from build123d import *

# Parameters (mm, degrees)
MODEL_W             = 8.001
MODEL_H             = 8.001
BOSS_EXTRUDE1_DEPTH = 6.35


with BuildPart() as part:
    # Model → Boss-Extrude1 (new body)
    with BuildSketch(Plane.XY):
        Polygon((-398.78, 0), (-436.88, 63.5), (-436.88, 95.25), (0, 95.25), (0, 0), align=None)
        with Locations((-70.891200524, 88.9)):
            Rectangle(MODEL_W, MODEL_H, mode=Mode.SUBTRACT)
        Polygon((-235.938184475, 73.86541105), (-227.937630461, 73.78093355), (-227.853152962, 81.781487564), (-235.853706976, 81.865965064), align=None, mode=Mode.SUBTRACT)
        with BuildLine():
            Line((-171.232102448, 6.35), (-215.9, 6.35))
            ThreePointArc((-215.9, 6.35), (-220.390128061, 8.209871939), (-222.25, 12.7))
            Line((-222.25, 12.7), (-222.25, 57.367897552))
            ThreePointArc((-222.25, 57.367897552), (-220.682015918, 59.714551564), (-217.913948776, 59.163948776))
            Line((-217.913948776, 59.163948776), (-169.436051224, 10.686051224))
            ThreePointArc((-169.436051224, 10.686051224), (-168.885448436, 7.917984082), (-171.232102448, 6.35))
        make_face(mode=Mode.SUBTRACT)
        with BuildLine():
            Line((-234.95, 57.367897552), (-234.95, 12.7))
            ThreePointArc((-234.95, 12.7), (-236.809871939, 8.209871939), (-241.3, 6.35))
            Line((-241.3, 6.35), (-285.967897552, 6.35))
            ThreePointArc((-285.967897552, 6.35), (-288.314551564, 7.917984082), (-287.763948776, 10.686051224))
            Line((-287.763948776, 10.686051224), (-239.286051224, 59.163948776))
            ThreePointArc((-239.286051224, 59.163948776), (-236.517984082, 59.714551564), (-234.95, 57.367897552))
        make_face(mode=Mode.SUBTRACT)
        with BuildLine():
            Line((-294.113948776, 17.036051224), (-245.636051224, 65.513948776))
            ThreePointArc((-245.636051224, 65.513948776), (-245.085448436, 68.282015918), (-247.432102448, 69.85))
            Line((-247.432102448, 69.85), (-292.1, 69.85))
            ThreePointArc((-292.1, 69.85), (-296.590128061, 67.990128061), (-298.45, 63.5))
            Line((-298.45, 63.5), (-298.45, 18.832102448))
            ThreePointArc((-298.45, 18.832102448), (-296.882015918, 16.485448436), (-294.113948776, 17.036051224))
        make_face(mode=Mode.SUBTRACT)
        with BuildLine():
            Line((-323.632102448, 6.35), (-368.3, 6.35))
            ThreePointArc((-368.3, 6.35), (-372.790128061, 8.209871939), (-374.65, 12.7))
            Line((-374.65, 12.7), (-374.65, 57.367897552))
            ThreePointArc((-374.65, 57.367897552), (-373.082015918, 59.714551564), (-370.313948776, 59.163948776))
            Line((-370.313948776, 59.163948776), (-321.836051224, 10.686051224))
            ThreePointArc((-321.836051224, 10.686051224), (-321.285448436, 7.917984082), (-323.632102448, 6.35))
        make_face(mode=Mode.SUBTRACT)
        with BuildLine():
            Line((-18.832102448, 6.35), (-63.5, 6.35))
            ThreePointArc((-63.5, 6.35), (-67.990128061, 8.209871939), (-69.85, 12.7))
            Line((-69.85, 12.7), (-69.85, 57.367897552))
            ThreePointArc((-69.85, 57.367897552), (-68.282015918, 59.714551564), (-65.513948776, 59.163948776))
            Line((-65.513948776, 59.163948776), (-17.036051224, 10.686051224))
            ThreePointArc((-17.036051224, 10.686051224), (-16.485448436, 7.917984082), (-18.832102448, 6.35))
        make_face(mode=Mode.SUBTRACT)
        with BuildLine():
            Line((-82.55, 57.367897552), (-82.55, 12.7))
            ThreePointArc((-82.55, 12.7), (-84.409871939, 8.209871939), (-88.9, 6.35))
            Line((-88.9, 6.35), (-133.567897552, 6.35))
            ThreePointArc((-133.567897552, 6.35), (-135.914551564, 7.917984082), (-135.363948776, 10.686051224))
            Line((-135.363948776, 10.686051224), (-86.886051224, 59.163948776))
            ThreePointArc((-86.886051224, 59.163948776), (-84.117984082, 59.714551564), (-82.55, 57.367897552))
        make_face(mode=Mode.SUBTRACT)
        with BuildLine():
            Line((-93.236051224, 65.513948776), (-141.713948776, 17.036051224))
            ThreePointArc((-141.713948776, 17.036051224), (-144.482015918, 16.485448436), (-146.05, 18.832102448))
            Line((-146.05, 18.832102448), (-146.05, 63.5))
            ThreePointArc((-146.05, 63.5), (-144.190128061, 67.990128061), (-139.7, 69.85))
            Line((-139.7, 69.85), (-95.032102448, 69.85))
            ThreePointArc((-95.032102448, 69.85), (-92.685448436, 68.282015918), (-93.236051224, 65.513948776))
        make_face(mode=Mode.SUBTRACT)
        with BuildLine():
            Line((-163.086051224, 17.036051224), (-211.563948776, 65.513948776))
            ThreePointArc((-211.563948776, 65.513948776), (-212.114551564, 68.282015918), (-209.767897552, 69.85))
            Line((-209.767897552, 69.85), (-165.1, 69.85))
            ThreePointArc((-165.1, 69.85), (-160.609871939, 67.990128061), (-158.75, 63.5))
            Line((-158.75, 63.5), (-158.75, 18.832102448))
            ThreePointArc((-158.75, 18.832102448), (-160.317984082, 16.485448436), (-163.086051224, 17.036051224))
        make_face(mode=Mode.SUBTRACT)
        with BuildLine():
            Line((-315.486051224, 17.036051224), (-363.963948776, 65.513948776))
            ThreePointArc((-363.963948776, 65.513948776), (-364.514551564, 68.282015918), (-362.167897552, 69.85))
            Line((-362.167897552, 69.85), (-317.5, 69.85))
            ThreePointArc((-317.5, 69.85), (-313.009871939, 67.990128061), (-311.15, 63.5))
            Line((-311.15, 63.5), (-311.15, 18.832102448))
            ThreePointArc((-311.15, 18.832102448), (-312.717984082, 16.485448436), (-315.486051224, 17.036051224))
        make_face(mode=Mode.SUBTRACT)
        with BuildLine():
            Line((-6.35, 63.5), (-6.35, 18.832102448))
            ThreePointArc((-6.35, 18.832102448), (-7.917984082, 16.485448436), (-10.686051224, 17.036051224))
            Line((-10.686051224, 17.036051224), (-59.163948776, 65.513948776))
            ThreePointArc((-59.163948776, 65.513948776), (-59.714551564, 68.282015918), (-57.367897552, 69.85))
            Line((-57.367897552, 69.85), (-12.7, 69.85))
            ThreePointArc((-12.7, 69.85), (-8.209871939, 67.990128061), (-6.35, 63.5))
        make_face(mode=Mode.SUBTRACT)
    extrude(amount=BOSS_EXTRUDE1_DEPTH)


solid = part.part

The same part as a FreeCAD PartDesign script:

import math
import FreeCAD as App
import Part
import Sketcher

V = App.Vector
Q = App.Units.Quantity


def add_polygon(sketch, points):
    """Adds a closed chain of lines whose ends are joined by coincident constraints."""
    first, n = sketch.GeometryCount, len(points)
    for a, b in zip(points, points[1:] + points[:1]):
        sketch.addGeometry(Part.LineSegment(App.Vector(*a, 0), App.Vector(*b, 0)), False)
    for i in range(n):
        sketch.addConstraint(Sketcher.Constraint("Coincident", first + i, 2, first + (i + 1) % n, 1))

doc = App.newDocument("Part")
body = doc.addObject("PartDesign::Body", "Body")

# Sketch on XY plane
sketch1 = body.newObject("Sketcher::SketchObject", "Sketch")
sketch1.AttachmentSupport = (doc.getObject("XY_Plane"), [""])
sketch1.MapMode = "FlatFace"
add_polygon(sketch1, [(-436.9, 63.5), (-398.8, 0), (0, 0), (0, 95.2), (-436.9, 95.2)])  # lines 0-4
sketch1.addGeometry(Part.LineSegment(V(-18.8, 6.3, 0), V(-63.5, 6.3, 0)), False)  # 5
sketch1.addGeometry(Part.ArcOfCircle(Part.Circle(V(-63.5, 12.7, 0), V(0, 0, 1), 6.3), math.radians(180), math.radians(270)), False)  # 6
sketch1.addGeometry(Part.LineSegment(V(-69.8, 12.7, 0), V(-69.8, 57.4, 0)), False)  # 7
sketch1.addGeometry(Part.ArcOfCircle(Part.Circle(V(-67.3, 57.4, 0), V(0, 0, 1), 2.5), math.radians(45), math.radians(180)), False)  # 8
sketch1.addGeometry(Part.LineSegment(V(-65.5, 59.2, 0), V(-17, 10.7, 0)), False)  # 9
sketch1.addGeometry(Part.ArcOfCircle(Part.Circle(V(-18.8, 8.9, 0), V(0, 0, 1), 2.5), math.radians(-90), math.radians(45)), False)  # 10
sketch1.addGeometry(Part.LineSegment(V(-6.3, 63.5, 0), V(-6.3, 18.8, 0)), False)  # 11
sketch1.addGeometry(Part.ArcOfCircle(Part.Circle(V(-8.9, 18.8, 0), V(0, 0, 1), 2.5), math.radians(-135), math.radians(0)), False)  # 12
sketch1.addGeometry(Part.LineSegment(V(-10.7, 17, 0), V(-59.2, 65.5, 0)), False)  # 13
sketch1.addGeometry(Part.ArcOfCircle(Part.Circle(V(-57.4, 67.3, 0), V(0, 0, 1), 2.5), math.radians(90), math.radians(225)), False)  # 14
sketch1.addGeometry(Part.LineSegment(V(-57.4, 69.8, 0), V(-12.7, 69.8, 0)), False)  # 15
sketch1.addGeometry(Part.ArcOfCircle(Part.Circle(V(-12.7, 63.5, 0), V(0, 0, 1), 6.3), math.radians(0), math.radians(90)), False)  # 16
sketch1.addGeometry(Part.LineSegment(V(-82.5, 57.4, 0), V(-82.5, 12.7, 0)), False)  # 17
sketch1.addGeometry(Part.ArcOfCircle(Part.Circle(V(-88.9, 12.7, 0), V(0, 0, 1), 6.3), math.radians(-90), math.radians(0)), False)  # 18
sketch1.addGeometry(Part.LineSegment(V(-88.9, 6.3, 0), V(-133.6, 6.3, 0)), False)  # 19
sketch1.addGeometry(Part.ArcOfCircle(Part.Circle(V(-133.6, 8.9, 0), V(0, 0, 1), 2.5), math.radians(135), math.radians(270)), False)  # 20
sketch1.addGeometry(Part.LineSegment(V(-135.4, 10.7, 0), V(-86.9, 59.2, 0)), False)  # 21
sketch1.addGeometry(Part.ArcOfCircle(Part.Circle(V(-85.1, 57.4, 0), V(0, 0, 1), 2.5), math.radians(0), math.radians(135)), False)  # 22
sketch1.addGeometry(Part.LineSegment(V(-93.2, 65.5, 0), V(-141.7, 17, 0)), False)  # 23
sketch1.addGeometry(Part.ArcOfCircle(Part.Circle(V(-143.5, 18.8, 0), V(0, 0, 1), 2.5), math.radians(-180), math.radians(-45)), False)  # 24
sketch1.addGeometry(Part.LineSegment(V(-146.1, 18.8, 0), V(-146.1, 63.5, 0)), False)  # 25
sketch1.addGeometry(Part.ArcOfCircle(Part.Circle(V(-139.7, 63.5, 0), V(0, 0, 1), 6.3), math.radians(90), math.radians(180)), False)  # 26
sketch1.addGeometry(Part.LineSegment(V(-139.7, 69.8, 0), V(-95, 69.8, 0)), False)  # 27
sketch1.addGeometry(Part.ArcOfCircle(Part.Circle(V(-95, 67.3, 0), V(0, 0, 1), 2.5), math.radians(-45), math.radians(90)), False)  # 28
sketch1.addGeometry(Part.LineSegment(V(-163.1, 17, 0), V(-211.6, 65.5, 0)), False)  # 29
sketch1.addGeometry(Part.ArcOfCircle(Part.Circle(V(-209.8, 67.3, 0), V(0, 0, 1), 2.5), math.radians(90), math.radians(225)), False)  # 30
sketch1.addGeometry(Part.LineSegment(V(-209.8, 69.8, 0), V(-165.1, 69.8, 0)), False)  # 31
sketch1.addGeometry(Part.ArcOfCircle(Part.Circle(V(-165.1, 63.5, 0), V(0, 0, 1), 6.3), math.radians(0), math.radians(90)), False)  # 32
sketch1.addGeometry(Part.LineSegment(V(-158.8, 63.5, 0), V(-158.8, 18.8, 0)), False)  # 33
sketch1.addGeometry(Part.ArcOfCircle(Part.Circle(V(-161.3, 18.8, 0), V(0, 0, 1), 2.5), math.radians(-135), math.radians(0)), False)  # 34
sketch1.addGeometry(Part.LineSegment(V(-171.2, 6.3, 0), V(-215.9, 6.3, 0)), False)  # 35
sketch1.addGeometry(Part.ArcOfCircle(Part.Circle(V(-215.9, 12.7, 0), V(0, 0, 1), 6.3), math.radians(180), math.radians(270)), False)  # 36
sketch1.addGeometry(Part.LineSegment(V(-222.2, 12.7, 0), V(-222.2, 57.4, 0)), False)  # 37
sketch1.addGeometry(Part.ArcOfCircle(Part.Circle(V(-219.7, 57.4, 0), V(0, 0, 1), 2.5), math.radians(45), math.radians(180)), False)  # 38
sketch1.addGeometry(Part.LineSegment(V(-217.9, 59.2, 0), V(-169.4, 10.7, 0)), False)  # 39
sketch1.addGeometry(Part.ArcOfCircle(Part.Circle(V(-171.2, 8.9, 0), V(0, 0, 1), 2.5), math.radians(-90), math.radians(45)), False)  # 40
sketch1.addGeometry(Part.LineSegment(V(-234.9, 57.4, 0), V(-234.9, 12.7, 0)), False)  # 41
sketch1.addGeometry(Part.ArcOfCircle(Part.Circle(V(-241.3, 12.7, 0), V(0, 0, 1), 6.3), math.radians(-90), math.radians(0)), False)  # 42
sketch1.addGeometry(Part.LineSegment(V(-241.3, 6.3, 0), V(-286, 6.3, 0)), False)  # 43
sketch1.addGeometry(Part.ArcOfCircle(Part.Circle(V(-286, 8.9, 0), V(0, 0, 1), 2.5), math.radians(135), math.radians(270)), False)  # 44
sketch1.addGeometry(Part.LineSegment(V(-287.8, 10.7, 0), V(-239.3, 59.2, 0)), False)  # 45
sketch1.addGeometry(Part.ArcOfCircle(Part.Circle(V(-237.5, 57.4, 0), V(0, 0, 1), 2.5), math.radians(0), math.radians(135)), False)  # 46
sketch1.addGeometry(Part.ArcOfCircle(Part.Circle(V(-295.9, 18.8, 0), V(0, 0, 1), 2.5), math.radians(-180), math.radians(-45)), False)  # 47
sketch1.addGeometry(Part.LineSegment(V(-298.4, 18.8, 0), V(-298.4, 63.5, 0)), False)  # 48
sketch1.addGeometry(Part.ArcOfCircle(Part.Circle(V(-292.1, 63.5, 0), V(0, 0, 1), 6.3), math.radians(90), math.radians(180)), False)  # 49
sketch1.addGeometry(Part.LineSegment(V(-292.1, 69.8, 0), V(-247.4, 69.8, 0)), False)  # 50
sketch1.addGeometry(Part.ArcOfCircle(Part.Circle(V(-247.4, 67.3, 0), V(0, 0, 1), 2.5), math.radians(-45), math.radians(90)), False)  # 51
sketch1.addGeometry(Part.LineSegment(V(-245.6, 65.5, 0), V(-294.1, 17, 0)), False)  # 52
sketch1.addGeometry(Part.LineSegment(V(-323.6, 6.3, 0), V(-368.3, 6.3, 0)), False)  # 53
sketch1.addGeometry(Part.ArcOfCircle(Part.Circle(V(-368.3, 12.7, 0), V(0, 0, 1), 6.3), math.radians(180), math.radians(270)), False)  # 54
sketch1.addGeometry(Part.LineSegment(V(-374.6, 12.7, 0), V(-374.6, 57.4, 0)), False)  # 55
sketch1.addGeometry(Part.ArcOfCircle(Part.Circle(V(-372.1, 57.4, 0), V(0, 0, 1), 2.5), math.radians(45), math.radians(180)), False)  # 56
sketch1.addGeometry(Part.LineSegment(V(-370.3, 59.2, 0), V(-321.8, 10.7, 0)), False)  # 57
sketch1.addGeometry(Part.ArcOfCircle(Part.Circle(V(-323.6, 8.9, 0), V(0, 0, 1), 2.5), math.radians(-90), math.radians(45)), False)  # 58
sketch1.addGeometry(Part.LineSegment(V(-315.5, 17, 0), V(-364, 65.5, 0)), False)  # 59
sketch1.addGeometry(Part.ArcOfCircle(Part.Circle(V(-362.2, 67.3, 0), V(0, 0, 1), 2.5), math.radians(90), math.radians(225)), False)  # 60
sketch1.addGeometry(Part.LineSegment(V(-362.2, 69.8, 0), V(-317.5, 69.8, 0)), False)  # 61
sketch1.addGeometry(Part.ArcOfCircle(Part.Circle(V(-317.5, 63.5, 0), V(0, 0, 1), 6.3), math.radians(0), math.radians(90)), False)  # 62
sketch1.addGeometry(Part.LineSegment(V(-311.1, 63.5, 0), V(-311.1, 18.8, 0)), False)  # 63
sketch1.addGeometry(Part.ArcOfCircle(Part.Circle(V(-313.7, 18.8, 0), V(0, 0, 1), 2.5), math.radians(-135), math.radians(0)), False)  # 64
add_polygon(sketch1, [(-74.9, 84.9), (-74.9, 92.9), (-66.9, 92.9), (-66.9, 84.9)])  # lines 65-68
add_polygon(sketch1, [(-235.9, 73.9), (-235.9, 81.9), (-227.9, 81.8), (-227.9, 73.8)])  # lines 69-72
sketch1.addConstraint(Sketcher.Constraint("Tangent", 5, 2, 6, 2))
sketch1.addConstraint(Sketcher.Constraint("Tangent", 6, 1, 7, 1))
sketch1.addConstraint(Sketcher.Constraint("Tangent", 7, 2, 8, 2))
sketch1.addConstraint(Sketcher.Constraint("Tangent", 8, 1, 9, 1))
sketch1.addConstraint(Sketcher.Constraint("Tangent", 9, 2, 10, 2))
sketch1.addConstraint(Sketcher.Constraint("Tangent", 10, 1, 5, 1))
sketch1.addConstraint(Sketcher.Constraint("Tangent", 11, 2, 12, 2))
sketch1.addConstraint(Sketcher.Constraint("Tangent", 12, 1, 13, 1))
sketch1.addConstraint(Sketcher.Constraint("Tangent", 13, 2, 14, 2))
sketch1.addConstraint(Sketcher.Constraint("Tangent", 14, 1, 15, 1))
sketch1.addConstraint(Sketcher.Constraint("Tangent", 15, 2, 16, 2))
sketch1.addConstraint(Sketcher.Constraint("Tangent", 16, 1, 11, 1))
sketch1.addConstraint(Sketcher.Constraint("Tangent", 17, 2, 18, 2))
sketch1.addConstraint(Sketcher.Constraint("Tangent", 18, 1, 19, 1))
sketch1.addConstraint(Sketcher.Constraint("Tangent", 19, 2, 20, 2))
sketch1.addConstraint(Sketcher.Constraint("Tangent", 20, 1, 21, 1))
sketch1.addConstraint(Sketcher.Constraint("Tangent", 21, 2, 22, 2))
sketch1.addConstraint(Sketcher.Constraint("Tangent", 22, 1, 17, 1))
sketch1.addConstraint(Sketcher.Constraint("Tangent", 23, 2, 24, 2))
sketch1.addConstraint(Sketcher.Constraint("Tangent", 24, 1, 25, 1))
sketch1.addConstraint(Sketcher.Constraint("Tangent", 25, 2, 26, 2))
sketch1.addConstraint(Sketcher.Constraint("Tangent", 26, 1, 27, 1))
sketch1.addConstraint(Sketcher.Constraint("Tangent", 27, 2, 28, 2))
sketch1.addConstraint(Sketcher.Constraint("Tangent", 28, 1, 23, 1))
sketch1.addConstraint(Sketcher.Constraint("Tangent", 29, 2, 30, 2))
sketch1.addConstraint(Sketcher.Constraint("Tangent", 30, 1, 31, 1))
sketch1.addConstraint(Sketcher.Constraint("Tangent", 31, 2, 32, 2))
sketch1.addConstraint(Sketcher.Constraint("Tangent", 32, 1, 33, 1))
sketch1.addConstraint(Sketcher.Constraint("Tangent", 33, 2, 34, 2))
sketch1.addConstraint(Sketcher.Constraint("Tangent", 34, 1, 29, 1))
sketch1.addConstraint(Sketcher.Constraint("Tangent", 35, 2, 36, 2))
sketch1.addConstraint(Sketcher.Constraint("Tangent", 36, 1, 37, 1))
sketch1.addConstraint(Sketcher.Constraint("Tangent", 37, 2, 38, 2))
sketch1.addConstraint(Sketcher.Constraint("Tangent", 38, 1, 39, 1))
sketch1.addConstraint(Sketcher.Constraint("Tangent", 39, 2, 40, 2))
sketch1.addConstraint(Sketcher.Constraint("Tangent", 40, 1, 35, 1))
sketch1.addConstraint(Sketcher.Constraint("Tangent", 41, 2, 42, 2))
sketch1.addConstraint(Sketcher.Constraint("Tangent", 42, 1, 43, 1))
sketch1.addConstraint(Sketcher.Constraint("Tangent", 43, 2, 44, 2))
sketch1.addConstraint(Sketcher.Constraint("Tangent", 44, 1, 45, 1))
sketch1.addConstraint(Sketcher.Constraint("Tangent", 45, 2, 46, 2))
sketch1.addConstraint(Sketcher.Constraint("Tangent", 46, 1, 41, 1))
sketch1.addConstraint(Sketcher.Constraint("Tangent", 47, 1, 48, 1))
sketch1.addConstraint(Sketcher.Constraint("Tangent", 48, 2, 49, 2))
sketch1.addConstraint(Sketcher.Constraint("Tangent", 49, 1, 50, 1))
sketch1.addConstraint(Sketcher.Constraint("Tangent", 50, 2, 51, 2))
sketch1.addConstraint(Sketcher.Constraint("Tangent", 51, 1, 52, 1))
sketch1.addConstraint(Sketcher.Constraint("Tangent", 52, 2, 47, 2))
sketch1.addConstraint(Sketcher.Constraint("Tangent", 53, 2, 54, 2))
sketch1.addConstraint(Sketcher.Constraint("Tangent", 54, 1, 55, 1))
sketch1.addConstraint(Sketcher.Constraint("Tangent", 55, 2, 56, 2))
sketch1.addConstraint(Sketcher.Constraint("Tangent", 56, 1, 57, 1))
sketch1.addConstraint(Sketcher.Constraint("Tangent", 57, 2, 58, 2))
sketch1.addConstraint(Sketcher.Constraint("Tangent", 58, 1, 53, 1))
sketch1.addConstraint(Sketcher.Constraint("Tangent", 59, 2, 60, 2))
sketch1.addConstraint(Sketcher.Constraint("Tangent", 60, 1, 61, 1))
sketch1.addConstraint(Sketcher.Constraint("Tangent", 61, 2, 62, 2))
sketch1.addConstraint(Sketcher.Constraint("Tangent", 62, 1, 63, 1))
sketch1.addConstraint(Sketcher.Constraint("Tangent", 63, 2, 64, 2))
sketch1.addConstraint(Sketcher.Constraint("Tangent", 64, 1, 59, 1))
sketch1.addConstraint(Sketcher.Constraint("Horizontal", 1))
sketch1.addConstraint(Sketcher.Constraint("Vertical", 2))
sketch1.addConstraint(Sketcher.Constraint("Horizontal", 3))
sketch1.addConstraint(Sketcher.Constraint("Vertical", 4))
sketch1.addConstraint(Sketcher.Constraint("Horizontal", 5))
sketch1.addConstraint(Sketcher.Constraint("Vertical", 7))
sketch1.addConstraint(Sketcher.Constraint("Vertical", 11))
sketch1.addConstraint(Sketcher.Constraint("Horizontal", 15))
sketch1.addConstraint(Sketcher.Constraint("Vertical", 17))
sketch1.addConstraint(Sketcher.Constraint("Horizontal", 19))
sketch1.addConstraint(Sketcher.Constraint("Vertical", 25))
sketch1.addConstraint(Sketcher.Constraint("Horizontal", 27))
sketch1.addConstraint(Sketcher.Constraint("Horizontal", 31))
sketch1.addConstraint(Sketcher.Constraint("Vertical", 33))
sketch1.addConstraint(Sketcher.Constraint("Horizontal", 35))
sketch1.addConstraint(Sketcher.Constraint("Vertical", 37))
sketch1.addConstraint(Sketcher.Constraint("Vertical", 41))
sketch1.addConstraint(Sketcher.Constraint("Horizontal", 43))
sketch1.addConstraint(Sketcher.Constraint("Vertical", 48))
sketch1.addConstraint(Sketcher.Constraint("Horizontal", 50))
sketch1.addConstraint(Sketcher.Constraint("Horizontal", 53))
sketch1.addConstraint(Sketcher.Constraint("Vertical", 55))
sketch1.addConstraint(Sketcher.Constraint("Horizontal", 61))
sketch1.addConstraint(Sketcher.Constraint("Vertical", 63))
sketch1.addConstraint(Sketcher.Constraint("Vertical", 65))
sketch1.addConstraint(Sketcher.Constraint("Horizontal", 66))
sketch1.addConstraint(Sketcher.Constraint("Vertical", 67))
sketch1.addConstraint(Sketcher.Constraint("Horizontal", 68))
sketch1.addConstraint(Sketcher.Constraint("Coincident", 1, 2, -1, 1))
sketch1.addConstraint(Sketcher.Constraint("Equal", 8, 10))
sketch1.addConstraint(Sketcher.Constraint("Equal", 10, 12))
sketch1.addConstraint(Sketcher.Constraint("Equal", 12, 14))
sketch1.addConstraint(Sketcher.Constraint("Equal", 6, 16))
sketch1.addConstraint(Sketcher.Constraint("Equal", 16, 18))
sketch1.addConstraint(Sketcher.Constraint("Equal", 14, 20))
sketch1.addConstraint(Sketcher.Constraint("Equal", 20, 22))
sketch1.addConstraint(Sketcher.Constraint("Equal", 22, 24))
sketch1.addConstraint(Sketcher.Constraint("Equal", 18, 26))
sketch1.addConstraint(Sketcher.Constraint("Equal", 24, 28))
sketch1.addConstraint(Sketcher.Constraint("Equal", 28, 30))
sketch1.addConstraint(Sketcher.Constraint("Equal", 26, 32))
sketch1.addConstraint(Sketcher.Constraint("Equal", 30, 34))
sketch1.addConstraint(Sketcher.Constraint("Equal", 32, 36))
sketch1.addConstraint(Sketcher.Constraint("Equal", 34, 38))
sketch1.addConstraint(Sketcher.Constraint("Equal", 38, 40))
sketch1.addConstraint(Sketcher.Constraint("Equal", 36, 42))
sketch1.addConstraint(Sketcher.Constraint("Equal", 40, 44))
sketch1.addConstraint(Sketcher.Constraint("Equal", 44, 46))
sketch1.addConstraint(Sketcher.Constraint("Equal", 46, 47))
sketch1.addConstraint(Sketcher.Constraint("Equal", 42, 49))
sketch1.addConstraint(Sketcher.Constraint("Equal", 47, 51))
sketch1.addConstraint(Sketcher.Constraint("Equal", 49, 54))
sketch1.addConstraint(Sketcher.Constraint("Equal", 51, 56))
sketch1.addConstraint(Sketcher.Constraint("Equal", 56, 58))
sketch1.addConstraint(Sketcher.Constraint("Equal", 58, 60))
sketch1.addConstraint(Sketcher.Constraint("Equal", 54, 62))
sketch1.addConstraint(Sketcher.Constraint("Equal", 60, 64))
sketch1.addConstraint(Sketcher.Constraint("Parallel", 9, 13))
sketch1.addConstraint(Sketcher.Constraint("Perpendicular", 13, 21))
sketch1.addConstraint(Sketcher.Constraint("Parallel", 21, 23))
sketch1.addConstraint(Sketcher.Constraint("Perpendicular", 23, 29))
sketch1.addConstraint(Sketcher.Constraint("Parallel", 29, 39))
sketch1.addConstraint(Sketcher.Constraint("Perpendicular", 39, 45))
sketch1.addConstraint(Sketcher.Constraint("Parallel", 45, 52))
sketch1.addConstraint(Sketcher.Constraint("Perpendicular", 52, 57))
sketch1.addConstraint(Sketcher.Constraint("Parallel", 57, 59))
sketch1.addConstraint(Sketcher.Constraint("Perpendicular", 69, 70))
sketch1.addConstraint(Sketcher.Constraint("Perpendicular", 70, 71))
sketch1.addConstraint(Sketcher.Constraint("Perpendicular", 71, 72))
sketch1.addConstraint(Sketcher.Constraint("Horizontal", 6, 3, 18, 3))
sketch1.addConstraint(Sketcher.Constraint("Horizontal", 8, 3, 22, 3))
sketch1.addConstraint(Sketcher.Constraint("Horizontal", 12, 3, 24, 3))
sketch1.addConstraint(Sketcher.Constraint("Horizontal", 16, 3, 26, 3))
sketch1.addConstraint(Sketcher.Constraint("Horizontal", 28, 3, 30, 3))
sketch1.addConstraint(Sketcher.Constraint("Horizontal", 24, 3, 34, 3))
sketch1.addConstraint(Sketcher.Constraint("Horizontal", 18, 3, 36, 3))
sketch1.addConstraint(Sketcher.Constraint("Horizontal", 22, 3, 38, 3))
sketch1.addConstraint(Sketcher.Constraint("Horizontal", 36, 3, 42, 3))
sketch1.addConstraint(Sketcher.Constraint("Horizontal", 38, 3, 46, 3))
sketch1.addConstraint(Sketcher.Constraint("Horizontal", 34, 3, 47, 3))
sketch1.addConstraint(Sketcher.Constraint("Horizontal", 32, 3, 49, 3))
sketch1.addConstraint(Sketcher.Constraint("Horizontal", 42, 3, 54, 3))
sketch1.addConstraint(Sketcher.Constraint("Horizontal", 46, 3, 56, 3))
sketch1.addConstraint(Sketcher.Constraint("Horizontal", 51, 3, 60, 3))
sketch1.addConstraint(Sketcher.Constraint("Horizontal", 47, 3, 64, 3))
sketch1.addConstraint(Sketcher.Constraint("Horizontal", 62, 3, 4, 2))
sketch1.addConstraint(Sketcher.Constraint("Horizontal", 9, 2, 20, 1))
sketch1.addConstraint(Sketcher.Constraint("Equal", 5, 15))
sketch1.addConstraint(Sketcher.Constraint("Equal", 68, 65))
sketch1.addConstraint(Sketcher.Constraint("Equal", 69, 70))
sketch1.addConstraint(Sketcher.Constraint("Radius", 8, Q("0.1 in")))
sketch1.addConstraint(Sketcher.Constraint("Radius", 6, Q("0.25 in")))
sketch1.addConstraint(Sketcher.Constraint("DistanceX", 1, 1, 1, 2, Q("15.7 in")))
sketch1.addConstraint(Sketcher.Constraint("DistanceX", 3, 2, 3, 1, Q("17.2 in")))
sketch1.addConstraint(Sketcher.Constraint("DistanceY", 2, 1, 2, 2, Q("3.75 in")))
sketch1.addConstraint(Sketcher.Constraint("DistanceY", 4, 2, 4, 1, Q("1.25 in")))
sketch1.addConstraint(Sketcher.Constraint("DistanceX", 6, 3, -1, 1, Q("2.5 in")))
sketch1.addConstraint(Sketcher.Constraint("DistanceY", -1, 1, 6, 3, Q("0.5 in")))
sketch1.addConstraint(Sketcher.Constraint("DistanceX", 16, 3, -1, 1, Q("0.5 in")))
sketch1.addConstraint(Sketcher.Constraint("DistanceX", 18, 3, -1, 1, Q("3.5 in")))
sketch1.addConstraint(Sketcher.Constraint("DistanceX", 26, 3, -1, 1, Q("5.5 in")))
sketch1.addConstraint(Sketcher.Constraint("DistanceX", 32, 3, -1, 1, Q("6.5 in")))
sketch1.addConstraint(Sketcher.Constraint("DistanceX", 36, 3, -1, 1, Q("8.5 in")))
sketch1.addConstraint(Sketcher.Constraint("DistanceX", 42, 3, -1, 1, Q("9.5 in")))
sketch1.addConstraint(Sketcher.Constraint("DistanceX", 49, 3, -1, 1, Q("11.5 in")))
sketch1.addConstraint(Sketcher.Constraint("DistanceX", 54, 3, -1, 1, Q("14.5 in")))
sketch1.addConstraint(Sketcher.Constraint("DistanceX", 62, 3, -1, 1, Q("12.5 in")))
sketch1.addConstraint(Sketcher.Constraint("DistanceX", 66, 1, 66, 2, Q("0.315 in")))
sketch1.addConstraint(Sketcher.Constraint("Distance", 69, Q("0.315 in")))
sketch1.addConstraint(Sketcher.Constraint("DistanceY", -1, 1, 65, 2, Q("3.6575 in")))
sketch1.addConstraint(Sketcher.Constraint("Distance", 9, 68.5581))
sketch1.addConstraint(Sketcher.Constraint("DistanceX", 65, 2, -1, 1, 74.891701))
sketch1.addConstraint(Sketcher.Constraint("DistanceX", 71, 2, -1, 1, 227.93763))
sketch1.addConstraint(Sketcher.Constraint("DistanceY", -1, 1, 72, 2, 73.865411))
sketch1.addConstraint(Sketcher.Constraint("DistanceX", 69, 2, -1, 1, 235.853707))
pad1 = body.newObject("PartDesign::Pad", "Pad")
pad1.Profile = sketch1
pad1.Length = Q("0.25 in")

doc.recompute()
